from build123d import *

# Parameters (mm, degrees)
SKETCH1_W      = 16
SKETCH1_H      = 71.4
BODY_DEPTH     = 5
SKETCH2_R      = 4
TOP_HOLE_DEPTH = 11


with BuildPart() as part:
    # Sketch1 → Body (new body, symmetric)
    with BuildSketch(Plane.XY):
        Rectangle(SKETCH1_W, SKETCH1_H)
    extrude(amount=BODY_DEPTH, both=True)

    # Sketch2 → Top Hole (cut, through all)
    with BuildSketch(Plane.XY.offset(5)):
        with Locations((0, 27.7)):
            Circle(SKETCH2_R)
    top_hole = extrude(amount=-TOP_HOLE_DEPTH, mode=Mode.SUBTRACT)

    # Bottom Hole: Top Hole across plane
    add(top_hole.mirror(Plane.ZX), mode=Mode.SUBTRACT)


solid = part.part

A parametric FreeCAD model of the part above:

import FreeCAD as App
import Part
import Sketcher

V = App.Vector


def add_polygon(sketch, points):
    """Adds a closed chain of lines whose ends are joined by coincident constraints."""
    first, n = sketch.GeometryCount, len(points)
    for a, b in zip(points, points[1:] + points[:1]):
        sketch.addGeometry(Part.LineSegment(App.Vector(*a, 0), App.Vector(*b, 0)), False)
    for i in range(n):
        sketch.addConstraint(Sketcher.Constraint("Coincident", first + i, 2, first + (i + 1) % n, 1))

doc = App.newDocument("Part")
params = doc.addObject("Spreadsheet::Sheet", "Params")
for row, (alias, value) in enumerate([
    ("sketch1_width", "16 mm"),
    ("sketch1_height", "71.4 mm"),
    ("pad1_length", "10 mm"),
    ("sketch2_diameter", "8 mm"),
], start=1):
    params.set(f"A{row}", alias)
    params.set(f"B{row}", "=" + value)
    params.setAlias(f"B{row}", alias)

body = doc.addObject("PartDesign::Body", "Body")

# Sketch on XY plane
sketch1 = body.newObject("Sketcher::SketchObject", "Sketch")
sketch1.AttachmentSupport = (doc.getObject("XY_Plane"), [""])
sketch1.MapMode = "FlatFace"
add_polygon(sketch1, [(-8, 36), (-8, -36), (8, -36), (8, 36)])  # lines 0-3
sketch1.addConstraint(Sketcher.Constraint("Vertical", 0))
sketch1.addConstraint(Sketcher.Constraint("Horizontal", 1))
sketch1.addConstraint(Sketcher.Constraint("Vertical", 2))
sketch1.addConstraint(Sketcher.Constraint("Horizontal", 3))
sketch1.addConstraint(Sketcher.Constraint("Symmetric", 0, 2, 2, 2, -1, 1))
sketch1.addConstraint(Sketcher.Constraint("DistanceX", 1, 1, 1, 2, 16.0))
sketch1.addConstraint(Sketcher.Constraint("DistanceY", 0, 2, 0, 1, 71.4))
sketch1.setExpression("Constraints[9]", "Params.sketch1_width")
sketch1.setExpression("Constraints[10]", "Params.sketch1_height")
pad1 = body.newObject("PartDesign::Pad", "Pad")
pad1.Profile = sketch1
pad1.setExpression("Length", "Params.pad1_length")
pad1.Midplane = True

# Sketch on XY plane
sketch2 = body.newObject("Sketcher::SketchObject", "Sketch001")
sketch2.AttachmentSupport = (doc.getObject("XY_Plane"), [""])
sketch2.MapMode = "FlatFace"
sketch2.AttachmentOffset = App.Placement(V(0, 0, 5), App.Rotation())
sketch2.addGeometry(Part.Circle(V(0, 27.7, 0), V(0, 0, 1), 4), False)
sketch2.addConstraint(Sketcher.Constraint("PointOnObject", 0, 3, -2))
sketch2.addConstraint(Sketcher.Constraint("Diameter", 0, 8.0))
sketch2.addConstraint(Sketcher.Constraint("DistanceY", -1, 1, 0, 3, 27.7))
sketch2.setExpression("Constraints[1]", "Params.sketch2_diameter")
pocket1 = body.newObject("PartDesign::Pocket", "Pocket")
pocket1.Profile = sketch2
pocket1.Type = "ThroughAll"
doc.recompute()

mirrored = body.newObject("PartDesign::Mirrored", "Mirrored")
mirrored.Originals = [pocket1]
mirrored.MirrorPlane = (doc.getObject("XZ_Plane"), [""])
body.Tip = mirrored

doc.recompute()
